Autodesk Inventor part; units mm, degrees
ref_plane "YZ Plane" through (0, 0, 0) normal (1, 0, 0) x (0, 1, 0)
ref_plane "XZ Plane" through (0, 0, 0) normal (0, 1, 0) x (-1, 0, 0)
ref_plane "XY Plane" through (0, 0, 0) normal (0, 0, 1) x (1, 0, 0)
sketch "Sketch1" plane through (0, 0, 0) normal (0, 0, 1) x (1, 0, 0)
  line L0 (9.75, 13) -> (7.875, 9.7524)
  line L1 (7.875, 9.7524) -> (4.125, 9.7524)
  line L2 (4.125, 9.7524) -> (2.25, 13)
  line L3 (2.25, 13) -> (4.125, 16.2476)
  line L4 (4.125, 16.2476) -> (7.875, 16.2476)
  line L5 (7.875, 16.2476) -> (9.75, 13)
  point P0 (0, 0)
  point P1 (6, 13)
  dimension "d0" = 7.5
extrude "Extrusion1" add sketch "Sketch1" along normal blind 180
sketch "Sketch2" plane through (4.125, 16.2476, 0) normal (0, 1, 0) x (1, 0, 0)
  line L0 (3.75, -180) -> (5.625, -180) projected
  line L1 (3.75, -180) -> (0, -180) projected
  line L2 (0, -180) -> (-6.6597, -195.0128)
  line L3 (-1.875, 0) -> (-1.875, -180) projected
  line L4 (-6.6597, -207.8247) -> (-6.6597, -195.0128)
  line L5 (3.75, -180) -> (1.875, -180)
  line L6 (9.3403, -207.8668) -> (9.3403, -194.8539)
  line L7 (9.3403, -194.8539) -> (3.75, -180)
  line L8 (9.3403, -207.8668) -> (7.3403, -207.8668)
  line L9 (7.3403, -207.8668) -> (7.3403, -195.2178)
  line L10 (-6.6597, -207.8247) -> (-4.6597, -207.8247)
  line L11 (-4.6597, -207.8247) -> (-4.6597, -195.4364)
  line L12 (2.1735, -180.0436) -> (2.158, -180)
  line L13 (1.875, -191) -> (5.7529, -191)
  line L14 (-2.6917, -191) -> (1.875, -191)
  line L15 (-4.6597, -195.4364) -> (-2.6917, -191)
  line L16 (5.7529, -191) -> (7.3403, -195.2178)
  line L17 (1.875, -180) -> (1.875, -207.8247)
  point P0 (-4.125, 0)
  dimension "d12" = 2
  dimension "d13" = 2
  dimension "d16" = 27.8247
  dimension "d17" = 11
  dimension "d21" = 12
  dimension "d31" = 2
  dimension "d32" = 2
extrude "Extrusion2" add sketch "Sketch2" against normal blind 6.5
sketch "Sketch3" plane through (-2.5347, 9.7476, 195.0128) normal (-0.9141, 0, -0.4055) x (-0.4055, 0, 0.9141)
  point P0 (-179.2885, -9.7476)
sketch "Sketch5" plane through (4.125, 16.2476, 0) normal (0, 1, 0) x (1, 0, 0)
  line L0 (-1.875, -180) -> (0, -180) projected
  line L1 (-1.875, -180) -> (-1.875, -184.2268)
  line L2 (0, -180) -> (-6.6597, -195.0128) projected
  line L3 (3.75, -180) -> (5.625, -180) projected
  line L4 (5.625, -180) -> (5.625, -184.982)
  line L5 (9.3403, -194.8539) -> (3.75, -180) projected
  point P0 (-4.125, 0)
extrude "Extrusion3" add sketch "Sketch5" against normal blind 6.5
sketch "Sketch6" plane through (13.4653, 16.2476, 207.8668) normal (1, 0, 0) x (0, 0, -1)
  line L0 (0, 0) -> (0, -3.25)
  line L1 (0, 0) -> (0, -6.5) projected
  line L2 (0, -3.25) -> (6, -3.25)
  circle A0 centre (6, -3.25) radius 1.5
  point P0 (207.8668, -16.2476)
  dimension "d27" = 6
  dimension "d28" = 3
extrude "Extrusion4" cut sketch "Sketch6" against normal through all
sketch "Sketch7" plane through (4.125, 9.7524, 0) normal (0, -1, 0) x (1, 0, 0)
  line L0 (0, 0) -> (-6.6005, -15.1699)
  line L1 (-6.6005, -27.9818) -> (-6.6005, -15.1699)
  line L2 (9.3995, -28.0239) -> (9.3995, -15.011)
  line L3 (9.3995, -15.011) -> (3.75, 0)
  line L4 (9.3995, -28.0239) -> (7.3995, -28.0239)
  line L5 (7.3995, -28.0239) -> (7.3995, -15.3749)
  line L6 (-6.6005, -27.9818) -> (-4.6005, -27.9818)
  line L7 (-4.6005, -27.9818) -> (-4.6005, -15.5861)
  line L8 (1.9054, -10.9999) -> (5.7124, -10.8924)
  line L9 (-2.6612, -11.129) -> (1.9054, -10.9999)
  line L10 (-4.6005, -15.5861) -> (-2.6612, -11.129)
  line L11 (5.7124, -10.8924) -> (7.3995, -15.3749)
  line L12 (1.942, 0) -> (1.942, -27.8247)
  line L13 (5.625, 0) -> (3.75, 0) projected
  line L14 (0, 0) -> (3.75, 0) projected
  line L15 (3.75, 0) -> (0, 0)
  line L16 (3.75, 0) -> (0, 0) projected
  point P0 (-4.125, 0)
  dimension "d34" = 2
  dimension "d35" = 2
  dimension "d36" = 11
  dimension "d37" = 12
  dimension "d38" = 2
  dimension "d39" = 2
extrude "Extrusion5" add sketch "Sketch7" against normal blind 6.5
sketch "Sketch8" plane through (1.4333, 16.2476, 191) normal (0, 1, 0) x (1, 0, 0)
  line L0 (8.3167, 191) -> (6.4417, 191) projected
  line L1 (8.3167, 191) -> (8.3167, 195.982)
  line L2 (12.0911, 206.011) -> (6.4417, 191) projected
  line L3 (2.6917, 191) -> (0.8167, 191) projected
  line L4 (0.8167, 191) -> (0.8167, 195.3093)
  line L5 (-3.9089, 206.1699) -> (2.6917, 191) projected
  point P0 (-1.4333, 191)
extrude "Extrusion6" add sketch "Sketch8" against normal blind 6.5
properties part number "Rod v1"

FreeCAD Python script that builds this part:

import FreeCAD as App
import Part
import Sketcher

V = App.Vector
Q = App.Units.Quantity

doc = App.newDocument("Part")
params = doc.addObject("Spreadsheet::Sheet", "Params")
for row, (alias, value) in enumerate([
    ("sketch1_width", "3.75 mm"),
    ("pad1_length", "180 mm"),
    ("sketch2_width", "2 mm"),
    ("sketch2_width2", "3.75 mm"),
    ("pad2_length", "6.5 mm"),
    ("pad3_length", "6.5 mm"),
    ("sketch4_diameter", "3 mm"),
    ("sketch5_width", "2 mm"),
    ("sketch5_width2", "2 mm"),
    ("sketch5_width3", "3.75 mm"),
    ("pad4_length", "6.5 mm"),
    ("pad5_length", "6.5 mm"),
], start=1):
    params.set(f"A{row}", alias)
    params.set(f"B{row}", "=" + value)
    params.setAlias(f"B{row}", alias)

body = doc.addObject("PartDesign::Body", "Body")

sketch1 = body.newObject("Sketcher::SketchObject", "Sketch")
sketch1.AttachmentSupport = (doc.getObject("XY_Plane"), [""])
sketch1.MapMode = "FlatFace"
sketch1.addGeometry(Part.LineSegment(V(7.9, 9.8, 0), V(9.8, 13, 0)), False)
sketch1.addGeometry(Part.LineSegment(V(9.8, 13, 0), V(7.9, 16.2, 0)), False)
sketch1.addGeometry(Part.LineSegment(V(7.9, 16.2, 0), V(4.1, 16.2, 0)), False)
sketch1.addGeometry(Part.LineSegment(V(4.1, 16.2, 0), V(2.2, 13, 0)), False)
sketch1.addGeometry(Part.LineSegment(V(2.2, 13, 0), V(4.1, 9.8, 0)), False)
sketch1.addGeometry(Part.LineSegment(V(4.1, 9.8, 0), V(7.9, 9.8, 0)), False)
sketch1.addConstraint(Sketcher.Constraint("Coincident", 0, 2, 1, 1))
sketch1.addConstraint(Sketcher.Constraint("Coincident", 1, 2, 2, 1))
sketch1.addConstraint(Sketcher.Constraint("Coincident", 2, 2, 3, 1))
sketch1.addConstraint(Sketcher.Constraint("Coincident", 3, 2, 4, 1))
sketch1.addConstraint(Sketcher.Constraint("Coincident", 4, 2, 5, 1))
sketch1.addConstraint(Sketcher.Constraint("Coincident", 5, 2, 0, 1))
sketch1.addConstraint(Sketcher.Constraint("Horizontal", 2))
sketch1.addConstraint(Sketcher.Constraint("Horizontal", 5))
sketch1.addConstraint(Sketcher.Constraint("Parallel", 0, 3))
sketch1.addConstraint(Sketcher.Constraint("Parallel", 1, 4))
sketch1.addConstraint(Sketcher.Constraint("Horizontal", 0, 2, 3, 2))
sketch1.addConstraint(Sketcher.Constraint("Vertical", 2, 2, 4, 2))
sketch1.addConstraint(Sketcher.Constraint("Vertical", 1, 2, 5, 2))
sketch1.addConstraint(Sketcher.Constraint("DistanceX", 3, 2, 0, 2, 7.5))
sketch1.addConstraint(Sketcher.Constraint("Angle", 0, Q("60 deg")))
sketch1.addConstraint(Sketcher.Constraint("DistanceY", -1, 1, 0, 2, 13.0))
sketch1.addConstraint(Sketcher.Constraint("DistanceX", 2, 2, 2, 1, 3.75))
sketch1.addConstraint(Sketcher.Constraint("DistanceX", -1, 1, 0, 2, 9.75))
sketch1.setExpression("Constraints[16]", "Params.sketch1_width")
pad1 = body.newObject("PartDesign::Pad", "Pad")
pad1.Profile = sketch1
pad1.setExpression("Length", "Params.pad1_length")

sketch2 = body.newObject("Sketcher::SketchObject", "Sketch001")
sketch2.AttachmentSupport = (doc.getObject("XZ_Plane"), [""])
sketch2.MapMode = "FlatFace"
sketch2.AttachmentOffset = App.Placement(V(0, 0, -16.2476), App.Rotation())
sketch2.addGeometry(Part.LineSegment(V(13.5, 194.9, 0), V(7.9, 180, 0)), False)
sketch2.addGeometry(Part.LineSegment(V(7.9, 180, 0), V(4.1, 180, 0)), False)
sketch2.addGeometry(Part.LineSegment(V(4.1, 180, 0), V(-2.5, 195, 0)), False)
sketch2.addGeometry(Part.LineSegment(V(-2.5, 195, 0), V(-2.5, 207.8, 0)), False)
sketch2.addGeometry(Part.LineSegment(V(-2.5, 207.8, 0), V(-0.5, 207.8, 0)), False)
sketch2.addGeometry(Part.LineSegment(V(-0.5, 207.8, 0), V(-0.5, 195.4, 0)), False)
sketch2.addGeometry(Part.LineSegment(V(-0.5, 195.4, 0), V(1.4, 191, 0)), False)
sketch2.addGeometry(Part.LineSegment(V(1.4, 191, 0), V(9.9, 191, 0)), False)
sketch2.addGeometry(Part.LineSegment(V(9.9, 191, 0), V(11.5, 195.2, 0)), False)
sketch2.addGeometry(Part.LineSegment(V(11.5, 195.2, 0), V(11.5, 207.9, 0)), False)
sketch2.addGeometry(Part.LineSegment(V(11.5, 207.9, 0), V(13.5, 207.9, 0)), False)
sketch2.addGeometry(Part.LineSegment(V(13.5, 207.9, 0), V(13.5, 194.9, 0)), False)
sketch2.addConstraint(Sketcher.Constraint("Coincident", 0, 2, 1, 1))
sketch2.addConstraint(Sketcher.Constraint("Coincident", 1, 2, 2, 1))
sketch2.addConstraint(Sketcher.Constraint("Coincident", 2, 2, 3, 1))
sketch2.addConstraint(Sketcher.Constraint("Coincident", 3, 2, 4, 1))
sketch2.addConstraint(Sketcher.Constraint("Coincident", 4, 2, 5, 1))
sketch2.addConstraint(Sketcher.Constraint("Coincident", 5, 2, 6, 1))
sketch2.addConstraint(Sketcher.Constraint("Coincident", 6, 2, 7, 1))
sketch2.addConstraint(Sketcher.Constraint("Coincident", 7, 2, 8, 1))
sketch2.addConstraint(Sketcher.Constraint("Coincident", 8, 2, 9, 1))
sketch2.addConstraint(Sketcher.Constraint("Coincident", 9, 2, 10, 1))
sketch2.addConstraint(Sketcher.Constraint("Coincident", 10, 2, 11, 1))
sketch2.addConstraint(Sketcher.Constraint("Coincident", 11, 2, 0, 1))
sketch2.addConstraint(Sketcher.Constraint("Horizontal", 1))
sketch2.addConstraint(Sketcher.Constraint("Vertical", 3))
sketch2.addConstraint(Sketcher.Constraint("Horizontal", 4))
sketch2.addConstraint(Sketcher.Constraint("Vertical", 5))
sketch2.addConstraint(Sketcher.Constraint("Horizontal", 7))
sketch2.addConstraint(Sketcher.Constraint("Vertical", 9))
sketch2.addConstraint(Sketcher.Constraint("Horizontal", 10))
sketch2.addConstraint(Sketcher.Constraint("Vertical", 11))
sketch2.addConstraint(Sketcher.Constraint("Parallel", 2, 6))
sketch2.addConstraint(Sketcher.Constraint("Parallel", 0, 8))
sketch2.addConstraint(Sketcher.Constraint("Equal", 4, 10))
sketch2.addConstraint(Sketcher.Constraint("DistanceX", 4, 1, 4, 2, 2.0))
sketch2.addConstraint(Sketcher.Constraint("DistanceY", 1, 2, 6, 2, 11.0))
sketch2.addConstraint(Sketcher.Constraint("DistanceX", 5, 2, 8, 2, 12.0))
sketch2.addConstraint(Sketcher.Constraint("DistanceY", -1, 1, 0, 2, 180.0))
sketch2.addConstraint(Sketcher.Constraint("DistanceX", 1, 2, 1, 1, 3.75))
sketch2.addConstraint(Sketcher.Constraint("DistanceY", 1, 2, 3, 2, 27.8247))
sketch2.addConstraint(Sketcher.Constraint("DistanceY", 3, 1, 3, 2, 12.812))
sketch2.addConstraint(Sketcher.Constraint("DistanceY", 9, 1, 9, 2, 12.649))
sketch2.addConstraint(Sketcher.Constraint("DistanceY", 11, 2, 11, 1, 13.013))
sketch2.addConstraint(Sketcher.Constraint("Distance", 0, 15.871))
sketch2.addConstraint(Sketcher.Constraint("DistanceX", 7, 1, 7, 2, 8.4446))
sketch2.addConstraint(Sketcher.Constraint("DistanceY", 5, 2, 5, 1, 12.3883))
sketch2.addConstraint(Sketcher.Constraint("DistanceX", -1, 1, 0, 2, 7.875))
sketch2.setExpression("Constraints[23]", "Params.sketch2_width")
sketch2.setExpression("Constraints[27]", "Params.sketch2_width2")
pad2 = body.newObject("PartDesign::Pad", "Pad001")
pad2.Profile = sketch2
pad2.setExpression("Length", "Params.pad2_length")

sketch3 = body.newObject("Sketcher::SketchObject", "Sketch002")
sketch3.AttachmentSupport = (doc.getObject("XZ_Plane"), [""])
sketch3.MapMode = "FlatFace"
sketch3.AttachmentOffset = App.Placement(V(0, 0, -16.2476), App.Rotation())
sketch3.addGeometry(Part.LineSegment(V(4.1, 180, 0), V(2.2, 180, 0)), False)
sketch3.addGeometry(Part.LineSegment(V(2.2, 180, 0), V(2.2, 184.2, 0)), False)
sketch3.addGeometry(Part.LineSegment(V(2.2, 184.2, 0), V(4.1, 180, 0)), False)
sketch3.addGeometry(Part.LineSegment(V(9.8, 180, 0), V(7.9, 180, 0)), False)
sketch3.addGeometry(Part.LineSegment(V(7.9, 180, 0), V(9.7, 185, 0)), False)
sketch3.addGeometry(Part.LineSegment(V(9.8, 185, 0), V(9.8, 180, 0)), False)
sketch3.addConstraint(Sketcher.Constraint("Coincident", 0, 2, 1, 1))
sketch3.addConstraint(Sketcher.Constraint("Coincident", 1, 2, 2, 1))
sketch3.addConstraint(Sketcher.Constraint("Coincident", 2, 2, 0, 1))
sketch3.addConstraint(Sketcher.Constraint("Coincident", 3, 2, 4, 1))
sketch3.addConstraint(Sketcher.Constraint("Coincident", 4, 2, 5, 1))
sketch3.addConstraint(Sketcher.Constraint("Coincident", 5, 2, 3, 1))
sketch3.addConstraint(Sketcher.Constraint("Horizontal", 0))
sketch3.addConstraint(Sketcher.Constraint("Vertical", 1))
sketch3.addConstraint(Sketcher.Constraint("Horizontal", 3))
sketch3.addConstraint(Sketcher.Constraint("Vertical", 5))
sketch3.addConstraint(Sketcher.Constraint("Horizontal", 2, 2, 3, 2))
sketch3.addConstraint(Sketcher.Constraint("Equal", 0, 3))
sketch3.addConstraint(Sketcher.Constraint("DistanceY", -1, 1, 0, 2, 180.0))
sketch3.addConstraint(Sketcher.Constraint("DistanceX", 1, 2, 4, 2, 7.5))
sketch3.addConstraint(Sketcher.Constraint("DistanceX", 0, 2, 0, 1, 1.875))
sketch3.addConstraint(Sketcher.Constraint("DistanceY", 5, 2, 5, 1, 4.982))
sketch3.addConstraint(Sketcher.Constraint("DistanceX", -1, 1, 0, 2, 2.25))
sketch3.addConstraint(Sketcher.Constraint("Distance", 2, 4.624))
pad3 = body.newObject("PartDesign::Pad", "Pad002")
pad3.Profile = sketch3
pad3.setExpression("Length", "Params.pad3_length")

sketch4 = body.newObject("Sketcher::SketchObject", "Sketch003")
sketch4.AttachmentSupport = (doc.getObject("YZ_Plane"), [""])
sketch4.MapMode = "FlatFace"
sketch4.AttachmentOffset = App.Placement(V(0, 0, 13.4653), App.Rotation())
sketch4.addGeometry(Part.Circle(V(13, 201.9, 0), V(0, 0, 1), 1.5), False)
sketch4.addConstraint(Sketcher.Constraint("Diameter", 0, 3.0))
sketch4.addConstraint(Sketcher.Constraint("DistanceX", -1, 1, 0, 3, 12.9976))
sketch4.addConstraint(Sketcher.Constraint("DistanceY", -1, 1, 0, 3, 201.8668))
sketch4.setExpression("Constraints[0]", "Params.sketch4_diameter")
pocket1 = body.newObject("PartDesign::Pocket", "Pocket")
pocket1.Profile = sketch4
pocket1.Type = "ThroughAll"

sketch5 = body.newObject("Sketcher::SketchObject", "Sketch004")
sketch5.AttachmentSupport = (doc.getObject("XZ_Plane"), [""])
sketch5.MapMode = "FlatFace"
sketch5.AttachmentOffset = App.Placement(V(0, 0, -9.7524), App.Rotation())
sketch5.addGeometry(Part.LineSegment(V(4.125, 0, 0), V(-2.4755, -15.1699, 0)), False)
sketch5.addGeometry(Part.LineSegment(V(-2.4755, -15.1699, 0), V(-2.4755, -27.9818, 0)), False)
sketch5.addGeometry(Part.LineSegment(V(-2.4755, -27.9818, 0), V(-0.4755, -27.9818, 0)), False)
sketch5.addGeometry(Part.LineSegment(V(-0.4755, -27.9818, 0), V(-0.4755, -15.5861, 0)), False)
sketch5.addGeometry(Part.LineSegment(V(-0.4755, -15.5861, 0), V(1.4638, -11.129, 0)), False)
sketch5.addGeometry(Part.LineSegment(V(1.4638, -11.129, 0), V(6.0304, -10.9999, 0)), False)
sketch5.addGeometry(Part.LineSegment(V(6.0304, -10.9999, 0), V(9.8374, -10.8924, 0)), False)
sketch5.addGeometry(Part.LineSegment(V(9.8374, -10.8924, 0), V(11.5245, -15.3749, 0)), False)
sketch5.addGeometry(Part.LineSegment(V(11.5245, -15.3749, 0), V(11.5245, -28.0239, 0)), False)
sketch5.addGeometry(Part.LineSegment(V(11.5245, -28.0239, 0), V(13.5245, -28.0239, 0)), False)
sketch5.addGeometry(Part.LineSegment(V(13.5245, -28.0239, 0), V(13.5245, -15.011, 0)), False)
sketch5.addGeometry(Part.LineSegment(V(13.5245, -15.011, 0), V(7.875, 0, 0)), False)
sketch5.addGeometry(Part.LineSegment(V(7.875, 0, 0), V(4.125, 0, 0)), False)
sketch5.addConstraint(Sketcher.Constraint("Coincident", 0, 2, 1, 1))
sketch5.addConstraint(Sketcher.Constraint("Coincident", 1, 2, 2, 1))
sketch5.addConstraint(Sketcher.Constraint("Coincident", 2, 2, 3, 1))
sketch5.addConstraint(Sketcher.Constraint("Coincident", 3, 2, 4, 1))
sketch5.addConstraint(Sketcher.Constraint("Coincident", 4, 2, 5, 1))
sketch5.addConstraint(Sketcher.Constraint("Coincident", 5, 2, 6, 1))
sketch5.addConstraint(Sketcher.Constraint("Coincident", 6, 2, 7, 1))
sketch5.addConstraint(Sketcher.Constraint("Coincident", 7, 2, 8, 1))
sketch5.addConstraint(Sketcher.Constraint("Coincident", 8, 2, 9, 1))
sketch5.addConstraint(Sketcher.Constraint("Coincident", 9, 2, 10, 1))
sketch5.addConstraint(Sketcher.Constraint("Coincident", 10, 2, 11, 1))
sketch5.addConstraint(Sketcher.Constraint("Coincident", 11, 2, 12, 1))
sketch5.addConstraint(Sketcher.Constraint("Coincident", 12, 2, 0, 1))
sketch5.addConstraint(Sketcher.Constraint("Vertical", 1))
sketch5.addConstraint(Sketcher.Constraint("Horizontal", 2))
sketch5.addConstraint(Sketcher.Constraint("Vertical", 3))
sketch5.addConstraint(Sketcher.Constraint("Vertical", 8))
sketch5.addConstraint(Sketcher.Constraint("Horizontal", 9))
sketch5.addConstraint(Sketcher.Constraint("Vertical", 10))
sketch5.addConstraint(Sketcher.Constraint("Horizontal", 12))
sketch5.addConstraint(Sketcher.Constraint("PointOnObject", 11, 2, -1))
sketch5.addConstraint(Sketcher.Constraint("DistanceX", 2, 1, 2, 2, 2.0))
sketch5.addConstraint(Sketcher.Constraint("DistanceX", 9, 1, 9, 2, 2.0))
sketch5.addConstraint(Sketcher.Constraint("DistanceY", 5, 2, -1, 1, 11.0))
sketch5.addConstraint(Sketcher.Constraint("DistanceX", 3, 2, 7, 2, 12.0))
sketch5.addConstraint(Sketcher.Constraint("DistanceX", 12, 2, 12, 1, 3.75))
sketch5.addConstraint(Sketcher.Constraint("DistanceY", 1, 2, 1, 1, 12.812))
sketch5.addConstraint(Sketcher.Constraint("DistanceY", 8, 2, 8, 1, 12.649))
sketch5.addConstraint(Sketcher.Constraint("DistanceY", 10, 1, 10, 2, 13.013))
sketch5.addConstraint(Sketcher.Constraint("DistanceY", 0, 2, -1, 1, 15.17))
sketch5.addConstraint(Sketcher.Constraint("Distance", 11, 16.039))
sketch5.addConstraint(Sketcher.Constraint("DistanceY", 3, 1, 3, 2, 12.3957))
sketch5.addConstraint(Sketcher.Constraint("DistanceY", 4, 2, -1, 1, 11.129))
sketch5.addConstraint(Sketcher.Constraint("DistanceY", 7, 2, -1, 1, 15.375))
sketch5.addConstraint(Sketcher.Constraint("DistanceX", -1, 1, 11, 2, 7.875))
sketch5.addConstraint(Sketcher.Constraint("DistanceX", 3, 2, 5, 2, 6.506))
sketch5.addConstraint(Sketcher.Constraint("DistanceX", 5, 2, 6, 2, 3.807))
sketch5.addConstraint(Sketcher.Constraint("Distance", 4, 4.8607))
sketch5.addConstraint(Sketcher.Constraint("Distance", 6, 3.8085))
sketch5.setExpression("Constraints[21]", "Params.sketch5_width")
sketch5.setExpression("Constraints[22]", "Params.sketch5_width2")
sketch5.setExpression("Constraints[25]", "Params.sketch5_width3")
pad4 = body.newObject("PartDesign::Pad", "Pad003")
pad4.Profile = sketch5
pad4.setExpression("Length", "Params.pad4_length")
pad4.Reversed = True

sketch6 = body.newObject("Sketcher::SketchObject", "Sketch005")
sketch6.AttachmentSupport = (doc.getObject("XZ_Plane"), [""])
sketch6.MapMode = "FlatFace"
sketch6.AttachmentOffset = App.Placement(V(0, 0, -16.2476), App.Rotation())
sketch6.addGeometry(Part.LineSegment(V(7.9, 0, 0), V(9.8, 0, 0)), False)
sketch6.addGeometry(Part.LineSegment(V(9.8, 0, 0), V(9.8, -5, 0)), False)
sketch6.addGeometry(Part.LineSegment(V(9.7, -5, 0), V(7.9, 0, 0)), False)
sketch6.addGeometry(Part.LineSegment(V(2.2, 0, 0), V(4.1, 0, 0)), False)
sketch6.addGeometry(Part.LineSegment(V(4.1, 0, 0), V(2.2, -4.3, 0)), False)
sketch6.addGeometry(Part.LineSegment(V(2.2, -4.3, 0), V(2.2, 0, 0)), False)
sketch6.addConstraint(Sketcher.Constraint("Coincident", 0, 2, 1, 1))
sketch6.addConstraint(Sketcher.Constraint("Coincident", 1, 2, 2, 1))
sketch6.addConstraint(Sketcher.Constraint("Coincident", 2, 2, 0, 1))
sketch6.addConstraint(Sketcher.Constraint("Coincident", 3, 2, 4, 1))
sketch6.addConstraint(Sketcher.Constraint("Coincident", 4, 2, 5, 1))
sketch6.addConstraint(Sketcher.Constraint("Coincident", 5, 2, 3, 1))
sketch6.addConstraint(Sketcher.Constraint("Horizontal", 0))
sketch6.addConstraint(Sketcher.Constraint("Vertical", 1))
sketch6.addConstraint(Sketcher.Constraint("Horizontal", 3))
sketch6.addConstraint(Sketcher.Constraint("Vertical", 5))
sketch6.addConstraint(Sketcher.Constraint("PointOnObject", 0, 2, -1))
sketch6.addConstraint(Sketcher.Constraint("PointOnObject", 3, 2, -1))
sketch6.addConstraint(Sketcher.Constraint("Equal", 0, 3))
sketch6.addConstraint(Sketcher.Constraint("DistanceX", 4, 2, 1, 2, 7.5))
sketch6.addConstraint(Sketcher.Constraint("DistanceX", 0, 1, 0, 2, 1.875))
sketch6.addConstraint(Sketcher.Constraint("DistanceY", 1, 2, 1, 1, 4.982))
sketch6.addConstraint(Sketcher.Constraint("DistanceX", -1, 1, 0, 2, 9.75))
sketch6.addConstraint(Sketcher.Constraint("DistanceY", 5, 1, 5, 2, 4.3093))
pad5 = body.newObject("PartDesign::Pad", "Pad004")
pad5.Profile = sketch6
pad5.setExpression("Length", "Params.pad5_length")

doc.recompute()
